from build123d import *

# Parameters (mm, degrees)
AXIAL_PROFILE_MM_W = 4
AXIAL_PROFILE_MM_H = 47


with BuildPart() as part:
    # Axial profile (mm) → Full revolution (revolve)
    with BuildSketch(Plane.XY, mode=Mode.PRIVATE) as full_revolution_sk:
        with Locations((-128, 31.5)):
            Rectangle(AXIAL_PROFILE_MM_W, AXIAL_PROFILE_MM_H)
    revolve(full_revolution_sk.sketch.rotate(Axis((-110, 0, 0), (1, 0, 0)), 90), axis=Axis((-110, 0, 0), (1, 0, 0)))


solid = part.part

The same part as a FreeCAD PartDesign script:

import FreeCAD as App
import Part
import Sketcher


def add_polygon(sketch, points):
    """Adds a closed chain of lines whose ends are joined by coincident constraints."""
    first, n = sketch.GeometryCount, len(points)
    for a, b in zip(points, points[1:] + points[:1]):
        sketch.addGeometry(Part.LineSegment(App.Vector(*a, 0), App.Vector(*b, 0)), False)
    for i in range(n):
        sketch.addConstraint(Sketcher.Constraint("Coincident", first + i, 2, first + (i + 1) % n, 1))

doc = App.newDocument("Part")
body = doc.addObject("PartDesign::Body", "Body")

# Sketch on XY plane
sketch1 = doc.addObject("Sketcher::SketchObject", "Sketch")
body.addObject(sketch1)
sketch1.AttachmentSupport = (doc.XY_Plane, [""])
sketch1.MapMode = "FlatFace"
add_polygon(sketch1, [(-130, 55), (-130, 8), (-126, 8), (-126, 55)])  # lines 0-3
sketch1.addConstraint(Sketcher.Constraint("Vertical", 0))
sketch1.addConstraint(Sketcher.Constraint("Horizontal", 1))
sketch1.addConstraint(Sketcher.Constraint("Vertical", 2))
sketch1.addConstraint(Sketcher.Constraint("Horizontal", 3))
sketch1.addConstraint(Sketcher.Constraint("DistanceX", 1, 1, 1, 2, 4.0))
sketch1.addConstraint(Sketcher.Constraint("DistanceY", 0, 2, 0, 1, 47.0))
sketch1.addConstraint(Sketcher.Constraint("DistanceX", 0, 2, -1, 1, 130.0))
sketch1.addConstraint(Sketcher.Constraint("DistanceY", -1, 1, 0, 2, 8.0))
revolution = doc.addObject("PartDesign::Revolution", "Revolution")
body.addObject(revolution)
revolution.Profile = sketch1
revolution.ReferenceAxis = (sketch1, ["H_Axis"])
revolution.Angle = 360

doc.recompute()
